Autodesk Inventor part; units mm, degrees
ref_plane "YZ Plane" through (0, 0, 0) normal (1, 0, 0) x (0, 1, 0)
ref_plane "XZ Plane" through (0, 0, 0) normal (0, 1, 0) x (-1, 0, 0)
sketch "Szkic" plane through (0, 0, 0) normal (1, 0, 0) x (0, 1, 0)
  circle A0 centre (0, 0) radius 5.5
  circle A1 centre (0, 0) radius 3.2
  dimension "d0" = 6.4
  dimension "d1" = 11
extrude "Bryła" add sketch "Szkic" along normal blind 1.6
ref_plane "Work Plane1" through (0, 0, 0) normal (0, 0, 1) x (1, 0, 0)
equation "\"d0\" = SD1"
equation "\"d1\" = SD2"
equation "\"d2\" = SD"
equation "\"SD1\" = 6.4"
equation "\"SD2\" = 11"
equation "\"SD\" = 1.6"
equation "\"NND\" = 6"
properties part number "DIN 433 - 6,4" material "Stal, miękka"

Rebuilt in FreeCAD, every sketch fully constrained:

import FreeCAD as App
import Part
import Sketcher
from FreeCAD import Vector

doc = App.newDocument("Part")
body = doc.addObject("PartDesign::Body", "Body")

# Sketch on YZ plane
sketch1 = body.newObject("Sketcher::SketchObject", "Sketch")
sketch1.AttachmentSupport = (doc.getObject("YZ_Plane"), [""])
sketch1.MapMode = "FlatFace"
sketch1.addGeometry(Part.Circle(Vector(0, 0, 0), Vector(0, 0, 1), 5.5), False)
sketch1.addGeometry(Part.Circle(Vector(0, 0, 0), Vector(0, 0, 1), 3.2), False)
sketch1.addConstraint(Sketcher.Constraint("Coincident", 0, 3, -1, 1))
sketch1.addConstraint(Sketcher.Constraint("Coincident", 1, 3, -1, 1))
sketch1.addConstraint(Sketcher.Constraint("Diameter", 0, 11.0))
sketch1.addConstraint(Sketcher.Constraint("Diameter", 1, 6.4))
pad1 = body.newObject("PartDesign::Pad", "Pad")
pad1.Profile = sketch1
pad1.Length = 1.6

doc.recompute()
